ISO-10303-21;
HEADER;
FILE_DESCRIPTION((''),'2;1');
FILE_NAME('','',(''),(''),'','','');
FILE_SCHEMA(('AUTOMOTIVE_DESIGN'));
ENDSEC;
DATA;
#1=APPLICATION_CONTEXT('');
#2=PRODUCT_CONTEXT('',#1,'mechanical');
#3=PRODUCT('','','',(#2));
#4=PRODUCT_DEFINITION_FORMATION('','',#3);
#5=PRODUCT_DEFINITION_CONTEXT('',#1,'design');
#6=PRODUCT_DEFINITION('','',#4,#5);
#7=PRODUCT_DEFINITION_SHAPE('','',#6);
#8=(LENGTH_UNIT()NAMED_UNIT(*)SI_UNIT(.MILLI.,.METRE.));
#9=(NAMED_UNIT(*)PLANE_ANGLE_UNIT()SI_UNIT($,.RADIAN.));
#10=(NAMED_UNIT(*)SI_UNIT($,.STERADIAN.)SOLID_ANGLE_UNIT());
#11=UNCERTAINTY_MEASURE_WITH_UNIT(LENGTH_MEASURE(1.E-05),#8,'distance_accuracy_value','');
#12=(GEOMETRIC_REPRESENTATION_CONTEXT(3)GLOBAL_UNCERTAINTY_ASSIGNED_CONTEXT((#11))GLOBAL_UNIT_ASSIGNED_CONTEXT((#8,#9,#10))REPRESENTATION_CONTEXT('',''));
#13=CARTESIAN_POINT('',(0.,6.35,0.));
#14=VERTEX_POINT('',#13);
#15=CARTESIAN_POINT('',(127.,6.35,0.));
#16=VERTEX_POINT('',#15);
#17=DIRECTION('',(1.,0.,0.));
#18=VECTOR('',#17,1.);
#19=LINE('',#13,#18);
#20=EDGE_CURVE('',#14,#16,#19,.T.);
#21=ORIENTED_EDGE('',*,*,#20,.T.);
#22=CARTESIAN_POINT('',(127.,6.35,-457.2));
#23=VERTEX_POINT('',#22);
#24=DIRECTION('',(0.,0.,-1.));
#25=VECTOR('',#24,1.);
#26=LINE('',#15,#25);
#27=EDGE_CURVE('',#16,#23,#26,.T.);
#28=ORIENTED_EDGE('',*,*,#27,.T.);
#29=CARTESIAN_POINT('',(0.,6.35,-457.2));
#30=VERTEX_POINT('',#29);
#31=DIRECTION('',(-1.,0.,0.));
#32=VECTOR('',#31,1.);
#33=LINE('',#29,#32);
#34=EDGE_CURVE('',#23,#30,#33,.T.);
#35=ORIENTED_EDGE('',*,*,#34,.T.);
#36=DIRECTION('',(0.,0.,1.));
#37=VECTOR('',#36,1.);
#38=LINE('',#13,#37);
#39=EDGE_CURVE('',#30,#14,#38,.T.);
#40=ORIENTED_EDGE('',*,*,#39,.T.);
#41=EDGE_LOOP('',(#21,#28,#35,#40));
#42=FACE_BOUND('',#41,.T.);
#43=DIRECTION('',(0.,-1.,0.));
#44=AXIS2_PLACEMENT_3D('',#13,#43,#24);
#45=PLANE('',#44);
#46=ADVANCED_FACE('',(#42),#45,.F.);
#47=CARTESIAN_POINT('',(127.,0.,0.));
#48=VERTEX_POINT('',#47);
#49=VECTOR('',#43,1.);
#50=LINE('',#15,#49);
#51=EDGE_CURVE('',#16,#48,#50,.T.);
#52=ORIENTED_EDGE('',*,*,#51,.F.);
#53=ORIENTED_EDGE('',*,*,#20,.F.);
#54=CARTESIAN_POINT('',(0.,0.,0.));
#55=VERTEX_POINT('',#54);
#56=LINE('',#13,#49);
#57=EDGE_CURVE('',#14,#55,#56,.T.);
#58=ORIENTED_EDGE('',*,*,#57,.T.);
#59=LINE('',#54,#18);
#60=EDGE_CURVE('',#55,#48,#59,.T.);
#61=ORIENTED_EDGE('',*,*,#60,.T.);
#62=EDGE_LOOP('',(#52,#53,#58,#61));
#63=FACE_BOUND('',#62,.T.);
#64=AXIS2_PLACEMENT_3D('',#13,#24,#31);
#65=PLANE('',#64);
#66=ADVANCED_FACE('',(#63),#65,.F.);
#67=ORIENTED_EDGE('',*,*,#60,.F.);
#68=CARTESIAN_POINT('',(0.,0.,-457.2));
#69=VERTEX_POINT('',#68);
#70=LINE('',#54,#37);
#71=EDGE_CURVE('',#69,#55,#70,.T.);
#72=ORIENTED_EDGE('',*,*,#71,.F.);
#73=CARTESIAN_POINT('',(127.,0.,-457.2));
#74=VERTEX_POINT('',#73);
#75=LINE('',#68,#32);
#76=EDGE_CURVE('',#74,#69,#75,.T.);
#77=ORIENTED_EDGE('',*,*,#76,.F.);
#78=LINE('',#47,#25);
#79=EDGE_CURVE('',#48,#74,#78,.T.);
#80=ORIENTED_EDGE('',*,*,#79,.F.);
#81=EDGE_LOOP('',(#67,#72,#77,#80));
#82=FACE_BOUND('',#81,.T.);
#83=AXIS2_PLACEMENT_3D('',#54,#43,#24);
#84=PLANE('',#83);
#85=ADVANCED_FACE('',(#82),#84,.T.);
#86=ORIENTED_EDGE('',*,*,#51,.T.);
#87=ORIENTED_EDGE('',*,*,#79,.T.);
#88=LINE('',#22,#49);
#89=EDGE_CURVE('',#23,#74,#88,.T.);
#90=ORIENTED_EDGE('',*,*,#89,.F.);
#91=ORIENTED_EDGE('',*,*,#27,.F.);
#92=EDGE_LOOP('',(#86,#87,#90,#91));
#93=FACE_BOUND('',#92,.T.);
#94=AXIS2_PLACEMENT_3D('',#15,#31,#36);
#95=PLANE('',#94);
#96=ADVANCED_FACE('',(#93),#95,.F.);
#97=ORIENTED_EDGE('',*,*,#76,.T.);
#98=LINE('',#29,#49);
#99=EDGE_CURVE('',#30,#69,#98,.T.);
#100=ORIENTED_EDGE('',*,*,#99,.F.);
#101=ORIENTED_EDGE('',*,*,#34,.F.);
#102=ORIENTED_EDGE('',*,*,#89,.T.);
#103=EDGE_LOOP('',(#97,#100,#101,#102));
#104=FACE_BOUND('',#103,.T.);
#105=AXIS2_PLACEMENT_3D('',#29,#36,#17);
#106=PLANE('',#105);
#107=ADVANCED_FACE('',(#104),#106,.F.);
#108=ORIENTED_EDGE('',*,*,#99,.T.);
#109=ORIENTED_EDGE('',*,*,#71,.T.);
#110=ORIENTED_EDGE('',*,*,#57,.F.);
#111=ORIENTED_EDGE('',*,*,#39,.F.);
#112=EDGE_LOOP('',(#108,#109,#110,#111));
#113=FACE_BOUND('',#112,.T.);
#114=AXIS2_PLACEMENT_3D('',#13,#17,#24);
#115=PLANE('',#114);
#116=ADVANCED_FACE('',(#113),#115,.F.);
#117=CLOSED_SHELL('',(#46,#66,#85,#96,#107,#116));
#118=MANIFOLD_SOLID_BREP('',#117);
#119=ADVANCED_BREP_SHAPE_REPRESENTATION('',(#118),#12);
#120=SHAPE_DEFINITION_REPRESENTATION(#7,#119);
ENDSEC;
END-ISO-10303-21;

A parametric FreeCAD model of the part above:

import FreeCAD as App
import Part
import Sketcher
Q = App.Units.Quantity

doc = App.newDocument("Part")
body = doc.addObject("PartDesign::Body", "Body")

# Sketch on XZ plane
sketch1 = body.newObject("Sketcher::SketchObject", "Sketch")
sketch1.AttachmentSupport = (doc.getObject("XZ_Plane"), [""])
sketch1.MapMode = "FlatFace"
sketch1.addGeometry([
    Part.LineSegment(App.Vector(0, -457.2, 0), App.Vector(0, 0, 0)),
    Part.LineSegment(App.Vector(0, 0, 0), App.Vector(127, 0, 0)),
    Part.LineSegment(App.Vector(127, 0, 0), App.Vector(127, -457.2, 0)),
    Part.LineSegment(App.Vector(127, -457.2, 0), App.Vector(0, -457.2, 0)),
], False)
sketch1.addConstraint([
    Sketcher.Constraint("Coincident", 0, 2, 1, 1),
    Sketcher.Constraint("Coincident", 1, 2, 2, 1),
    Sketcher.Constraint("Coincident", 2, 2, 3, 1),
    Sketcher.Constraint("Coincident", 3, 2, 0, 1),
    Sketcher.Constraint("Vertical", 0),
    Sketcher.Constraint("Horizontal", 1),
    Sketcher.Constraint("Vertical", 2),
    Sketcher.Constraint("Horizontal", 3),
    Sketcher.Constraint("Coincident", 0, 2, -1, 1),
    Sketcher.Constraint("DistanceX", 1, 1, 1, 2, Q("5 in")),
    Sketcher.Constraint("DistanceY", 0, 1, 0, 2, Q("18 in")),
])
pad1 = body.newObject("PartDesign::Pad", "Pad")
pad1.Profile = sketch1
pad1.Length = Q("0.25 in")
pad1.Reversed = True

doc.recompute()
